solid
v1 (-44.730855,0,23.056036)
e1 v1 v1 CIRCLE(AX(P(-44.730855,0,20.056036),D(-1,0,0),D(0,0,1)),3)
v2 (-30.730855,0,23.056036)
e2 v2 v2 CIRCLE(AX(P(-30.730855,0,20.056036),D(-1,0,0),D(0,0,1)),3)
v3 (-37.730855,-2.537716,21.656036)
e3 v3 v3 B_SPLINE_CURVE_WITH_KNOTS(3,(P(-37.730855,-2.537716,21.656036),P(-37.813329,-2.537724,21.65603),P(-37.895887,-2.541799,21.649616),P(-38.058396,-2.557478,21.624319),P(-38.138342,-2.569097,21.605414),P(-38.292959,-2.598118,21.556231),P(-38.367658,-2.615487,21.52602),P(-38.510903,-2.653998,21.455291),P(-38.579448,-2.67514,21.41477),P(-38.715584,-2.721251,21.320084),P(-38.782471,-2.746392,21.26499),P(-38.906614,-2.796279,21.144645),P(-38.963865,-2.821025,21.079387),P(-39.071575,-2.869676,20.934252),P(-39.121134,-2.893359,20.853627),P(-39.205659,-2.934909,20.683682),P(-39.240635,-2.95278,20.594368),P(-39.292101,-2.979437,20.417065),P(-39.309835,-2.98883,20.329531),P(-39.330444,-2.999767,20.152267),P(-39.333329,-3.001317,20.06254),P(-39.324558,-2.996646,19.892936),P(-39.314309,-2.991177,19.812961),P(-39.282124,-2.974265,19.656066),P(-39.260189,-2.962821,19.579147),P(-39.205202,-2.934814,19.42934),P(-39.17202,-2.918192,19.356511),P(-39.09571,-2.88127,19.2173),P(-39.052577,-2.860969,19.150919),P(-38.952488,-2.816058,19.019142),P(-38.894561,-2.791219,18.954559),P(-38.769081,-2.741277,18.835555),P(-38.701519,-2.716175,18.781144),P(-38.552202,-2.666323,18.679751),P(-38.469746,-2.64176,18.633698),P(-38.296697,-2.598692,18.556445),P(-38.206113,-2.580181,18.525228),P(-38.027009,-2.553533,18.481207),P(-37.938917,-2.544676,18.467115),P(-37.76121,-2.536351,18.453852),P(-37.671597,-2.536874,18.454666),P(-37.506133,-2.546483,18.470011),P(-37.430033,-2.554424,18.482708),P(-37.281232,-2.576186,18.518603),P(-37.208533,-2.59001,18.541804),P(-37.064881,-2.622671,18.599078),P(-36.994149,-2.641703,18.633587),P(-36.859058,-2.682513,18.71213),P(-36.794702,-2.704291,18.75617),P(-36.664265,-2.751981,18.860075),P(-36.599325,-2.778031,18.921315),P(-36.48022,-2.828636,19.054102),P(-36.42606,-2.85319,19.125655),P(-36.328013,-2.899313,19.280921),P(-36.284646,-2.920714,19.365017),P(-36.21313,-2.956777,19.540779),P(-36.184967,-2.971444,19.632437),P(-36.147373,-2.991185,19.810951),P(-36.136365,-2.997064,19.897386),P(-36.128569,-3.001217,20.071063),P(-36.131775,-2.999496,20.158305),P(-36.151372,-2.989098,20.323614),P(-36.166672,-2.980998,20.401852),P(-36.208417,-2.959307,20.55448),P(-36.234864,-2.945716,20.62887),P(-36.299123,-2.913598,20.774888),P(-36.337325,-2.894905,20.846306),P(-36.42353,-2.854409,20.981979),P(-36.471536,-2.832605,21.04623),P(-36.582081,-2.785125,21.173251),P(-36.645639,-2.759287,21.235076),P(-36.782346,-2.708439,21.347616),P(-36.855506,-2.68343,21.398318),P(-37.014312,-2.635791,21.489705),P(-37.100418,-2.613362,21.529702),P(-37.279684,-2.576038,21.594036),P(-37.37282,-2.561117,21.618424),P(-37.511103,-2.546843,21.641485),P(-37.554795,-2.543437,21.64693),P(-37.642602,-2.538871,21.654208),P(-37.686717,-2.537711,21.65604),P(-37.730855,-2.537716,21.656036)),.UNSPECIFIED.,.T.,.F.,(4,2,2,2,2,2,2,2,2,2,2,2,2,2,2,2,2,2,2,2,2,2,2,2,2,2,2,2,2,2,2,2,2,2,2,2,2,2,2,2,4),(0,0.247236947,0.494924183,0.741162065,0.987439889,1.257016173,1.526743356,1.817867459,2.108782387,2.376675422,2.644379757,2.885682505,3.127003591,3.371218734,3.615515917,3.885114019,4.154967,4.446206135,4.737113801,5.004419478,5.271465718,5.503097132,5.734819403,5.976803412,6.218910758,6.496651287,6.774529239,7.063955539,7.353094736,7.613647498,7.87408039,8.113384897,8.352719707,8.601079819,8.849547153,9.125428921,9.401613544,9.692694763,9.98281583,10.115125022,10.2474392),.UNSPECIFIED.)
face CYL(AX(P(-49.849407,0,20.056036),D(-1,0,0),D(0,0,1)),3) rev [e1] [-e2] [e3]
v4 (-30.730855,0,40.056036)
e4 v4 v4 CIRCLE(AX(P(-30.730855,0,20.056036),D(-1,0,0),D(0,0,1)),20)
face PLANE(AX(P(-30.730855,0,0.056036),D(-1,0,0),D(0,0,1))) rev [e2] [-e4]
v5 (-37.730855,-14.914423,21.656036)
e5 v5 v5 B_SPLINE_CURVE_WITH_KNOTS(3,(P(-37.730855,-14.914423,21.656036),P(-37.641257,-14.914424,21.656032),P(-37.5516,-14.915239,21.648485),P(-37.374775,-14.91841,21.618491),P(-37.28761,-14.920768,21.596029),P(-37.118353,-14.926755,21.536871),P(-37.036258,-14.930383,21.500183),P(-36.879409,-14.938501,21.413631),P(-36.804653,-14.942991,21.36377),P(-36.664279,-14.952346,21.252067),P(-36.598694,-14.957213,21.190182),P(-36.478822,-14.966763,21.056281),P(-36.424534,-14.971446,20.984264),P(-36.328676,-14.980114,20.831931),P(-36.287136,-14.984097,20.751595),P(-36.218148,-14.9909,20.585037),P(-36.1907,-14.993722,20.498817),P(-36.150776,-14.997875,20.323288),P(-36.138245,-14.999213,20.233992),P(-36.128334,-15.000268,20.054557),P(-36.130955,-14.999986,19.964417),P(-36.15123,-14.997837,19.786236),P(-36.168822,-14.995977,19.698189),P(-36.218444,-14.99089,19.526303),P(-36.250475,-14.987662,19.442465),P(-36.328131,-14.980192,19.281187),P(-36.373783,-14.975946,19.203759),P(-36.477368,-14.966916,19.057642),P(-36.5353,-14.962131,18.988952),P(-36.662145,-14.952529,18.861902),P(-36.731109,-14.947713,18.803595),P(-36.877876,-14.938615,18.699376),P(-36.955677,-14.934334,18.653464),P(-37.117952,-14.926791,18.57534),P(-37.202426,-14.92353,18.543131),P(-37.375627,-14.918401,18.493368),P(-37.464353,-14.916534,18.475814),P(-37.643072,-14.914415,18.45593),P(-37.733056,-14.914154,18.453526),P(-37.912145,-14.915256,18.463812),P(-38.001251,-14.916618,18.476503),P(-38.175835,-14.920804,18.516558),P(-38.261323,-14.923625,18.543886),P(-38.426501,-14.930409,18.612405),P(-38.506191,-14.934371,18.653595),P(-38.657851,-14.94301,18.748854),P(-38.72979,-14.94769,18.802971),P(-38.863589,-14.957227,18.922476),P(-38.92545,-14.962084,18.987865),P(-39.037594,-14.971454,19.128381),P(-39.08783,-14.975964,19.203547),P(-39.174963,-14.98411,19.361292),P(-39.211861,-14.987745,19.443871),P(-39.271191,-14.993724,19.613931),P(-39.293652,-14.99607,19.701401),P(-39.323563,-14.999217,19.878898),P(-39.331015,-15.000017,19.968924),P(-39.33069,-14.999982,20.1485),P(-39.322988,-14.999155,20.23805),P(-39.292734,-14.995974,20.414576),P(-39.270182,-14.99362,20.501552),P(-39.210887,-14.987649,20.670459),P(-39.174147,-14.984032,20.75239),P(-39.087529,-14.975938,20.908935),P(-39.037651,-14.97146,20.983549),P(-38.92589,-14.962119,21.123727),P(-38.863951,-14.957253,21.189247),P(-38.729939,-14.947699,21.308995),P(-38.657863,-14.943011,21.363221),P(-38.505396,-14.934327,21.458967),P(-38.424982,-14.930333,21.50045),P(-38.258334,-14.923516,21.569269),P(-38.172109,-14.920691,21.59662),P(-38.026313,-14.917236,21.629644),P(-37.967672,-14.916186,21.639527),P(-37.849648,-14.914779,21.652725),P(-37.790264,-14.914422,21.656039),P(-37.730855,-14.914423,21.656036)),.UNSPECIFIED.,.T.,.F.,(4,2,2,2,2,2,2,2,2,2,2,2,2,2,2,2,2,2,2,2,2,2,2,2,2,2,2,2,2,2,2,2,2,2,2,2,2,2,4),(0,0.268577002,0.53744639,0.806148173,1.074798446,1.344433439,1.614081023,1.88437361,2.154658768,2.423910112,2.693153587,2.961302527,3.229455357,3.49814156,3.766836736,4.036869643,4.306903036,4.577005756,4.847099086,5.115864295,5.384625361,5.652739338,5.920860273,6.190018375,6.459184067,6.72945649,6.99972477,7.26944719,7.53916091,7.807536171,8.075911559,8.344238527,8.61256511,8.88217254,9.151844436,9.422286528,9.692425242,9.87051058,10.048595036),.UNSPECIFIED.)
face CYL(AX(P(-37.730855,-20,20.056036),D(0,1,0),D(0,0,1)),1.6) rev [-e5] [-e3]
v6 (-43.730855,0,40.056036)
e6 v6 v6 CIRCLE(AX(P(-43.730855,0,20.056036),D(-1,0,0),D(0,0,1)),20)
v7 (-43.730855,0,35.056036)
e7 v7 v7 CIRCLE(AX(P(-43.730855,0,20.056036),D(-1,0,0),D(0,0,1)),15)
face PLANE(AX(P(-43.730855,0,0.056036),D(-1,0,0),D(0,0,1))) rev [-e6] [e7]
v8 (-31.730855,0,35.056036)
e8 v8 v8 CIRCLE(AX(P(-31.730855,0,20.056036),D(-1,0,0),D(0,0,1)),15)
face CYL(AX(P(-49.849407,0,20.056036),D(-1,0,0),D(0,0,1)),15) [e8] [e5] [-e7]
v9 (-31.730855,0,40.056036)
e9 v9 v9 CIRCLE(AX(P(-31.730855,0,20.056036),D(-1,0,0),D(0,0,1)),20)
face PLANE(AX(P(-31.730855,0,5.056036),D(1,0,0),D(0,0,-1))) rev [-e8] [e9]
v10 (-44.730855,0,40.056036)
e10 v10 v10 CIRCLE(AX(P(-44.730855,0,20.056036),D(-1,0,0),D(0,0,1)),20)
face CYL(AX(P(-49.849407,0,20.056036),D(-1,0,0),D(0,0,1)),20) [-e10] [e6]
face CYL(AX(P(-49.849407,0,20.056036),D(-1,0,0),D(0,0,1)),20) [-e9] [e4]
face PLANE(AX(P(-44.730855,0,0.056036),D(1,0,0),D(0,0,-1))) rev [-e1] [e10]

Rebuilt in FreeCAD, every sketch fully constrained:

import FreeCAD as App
import Part
import Sketcher

V = App.Vector
Q = App.Units.Quantity

doc = App.newDocument("Part")
params = doc.addObject("Spreadsheet::Sheet", "Params")
for row, (alias, value) in enumerate([
    ("sketch1_width", "14 mm"),
    ("sketch1_width2", "1 mm"),
    ("sketch1_height", "17 mm"),
    ("sketch1_height2", "5 mm"),
    ("revolution_angle", "360 deg"),
    ("sketch2_diameter", "3.2 mm"),
], start=1):
    params.set(f"A{row}", alias)
    params.set(f"B{row}", "=" + value)
    params.setAlias(f"B{row}", alias)

body = doc.addObject("PartDesign::Body", "Body")

# Sketch on XZ plane
sketch1 = doc.addObject("Sketcher::SketchObject", "Sketch")
body.addObject(sketch1)
sketch1.AttachmentSupport = (doc.XZ_Plane, [""])
sketch1.MapMode = "FlatFace"
sketch1.addGeometry([
    Part.LineSegment(V(-44.730855, 0.056036, 0), V(-44.730855, 17.056036, 0)),  # 0
    Part.LineSegment(V(-44.730855, 17.056036, 0), V(-30.730855, 17.056036, 0)),  # 1
    Part.LineSegment(V(-30.730855, 17.056036, 0), V(-30.730855, 0.056036, 0)),  # 2
    Part.LineSegment(V(-30.730855, 0.056036, 0), V(-31.730855, 0.056036, 0)),  # 3
    Part.LineSegment(V(-31.730855, 0.056036, 0), V(-31.730855, 5.056036, 0)),  # 4
    Part.LineSegment(V(-31.730855, 5.056036, 0), V(-43.730855, 5.056036, 0)),  # 5
    Part.LineSegment(V(-43.730855, 5.056036, 0), V(-43.730855, 0.056036, 0)),  # 6
    Part.LineSegment(V(-43.730855, 0.056036, 0), V(-44.730855, 0.056036, 0)),  # 7
], False)
sketch1.addGeometry(Part.LineSegment(V(-44.730855, 20.056036, 0), V(-30.730855, 20.056036, 0)), True)  # axis
sketch1.addConstraint([
    Sketcher.Constraint("Coincident", 0, 2, 1, 1),
    Sketcher.Constraint("Coincident", 1, 2, 2, 1),
    Sketcher.Constraint("Coincident", 2, 2, 3, 1),
    Sketcher.Constraint("Coincident", 3, 2, 4, 1),
    Sketcher.Constraint("Coincident", 4, 2, 5, 1),
    Sketcher.Constraint("Coincident", 5, 2, 6, 1),
    Sketcher.Constraint("Coincident", 6, 2, 7, 1),
    Sketcher.Constraint("Coincident", 7, 2, 0, 1),
    Sketcher.Constraint("Vertical", 0),
    Sketcher.Constraint("Horizontal", 1),
    Sketcher.Constraint("Vertical", 2),
    Sketcher.Constraint("Horizontal", 3),
    Sketcher.Constraint("Vertical", 4),
    Sketcher.Constraint("Horizontal", 5),
    Sketcher.Constraint("Vertical", 6),
    Sketcher.Constraint("Horizontal", 7),
    Sketcher.Constraint("Horizontal", 8),
    Sketcher.Constraint("Horizontal", 3, 2, 6, 2),
    Sketcher.Constraint("Vertical", 7, 2, 8, 1),
    Sketcher.Constraint("Vertical", 2, 2, 8, 2),
    Sketcher.Constraint("Equal", 3, 7),
    Sketcher.Constraint("DistanceX", 1, 1, 1, 2, Q("14 mm")),
    Sketcher.Constraint("DistanceX", 3, 2, 3, 1, Q("1 mm")),
    Sketcher.Constraint("DistanceY", 0, 1, 0, 2, Q("17 mm")),
    Sketcher.Constraint("DistanceY", 4, 1, 4, 2, Q("5 mm")),
    Sketcher.Constraint("DistanceY", 0, 2, 8, 1, Q("3 mm")),
    Sketcher.Constraint("DistanceX", 0, 2, -1, 1, Q("44.730855 mm")),
    Sketcher.Constraint("DistanceY", -1, 1, 0, 2, Q("17.056036 mm")),
])
sketch1.setExpression("Constraints[21]", "Params.sketch1_width")
sketch1.setExpression("Constraints[22]", "Params.sketch1_width2")
sketch1.setExpression("Constraints[23]", "Params.sketch1_height")
sketch1.setExpression("Constraints[24]", "Params.sketch1_height2")
revolution = doc.addObject("PartDesign::Revolution", "Revolution")
body.addObject(revolution)
revolution.Profile = sketch1
revolution.ReferenceAxis = (sketch1, ["Axis0"])
revolution.setExpression("Angle", "Params.revolution_angle")

# Sketch on XZ plane
sketch2 = doc.addObject("Sketcher::SketchObject", "Sketch001")
body.addObject(sketch2)
sketch2.AttachmentSupport = (doc.XZ_Plane, [""])
sketch2.MapMode = "FlatFace"
sketch2.addGeometry(Part.Circle(V(-37.730855, 20.056036, 0), V(0, 0, 1), 1.6), False)
sketch2.addConstraint([
    Sketcher.Constraint("Diameter", 0, Q("3.2 mm")),
    Sketcher.Constraint("DistanceX", 0, 3, -1, 1, Q("37.730855 mm")),
    Sketcher.Constraint("DistanceY", -1, 1, 0, 3, Q("20.056036 mm")),
])
sketch2.setExpression("Constraints[0]", "Params.sketch2_diameter")
pocket1 = doc.addObject("PartDesign::Pocket", "Pocket")
body.addObject(pocket1)
pocket1.Profile = sketch2
pocket1.Type = "ThroughAll"
pocket1.Reversed = True

doc.recompute()
